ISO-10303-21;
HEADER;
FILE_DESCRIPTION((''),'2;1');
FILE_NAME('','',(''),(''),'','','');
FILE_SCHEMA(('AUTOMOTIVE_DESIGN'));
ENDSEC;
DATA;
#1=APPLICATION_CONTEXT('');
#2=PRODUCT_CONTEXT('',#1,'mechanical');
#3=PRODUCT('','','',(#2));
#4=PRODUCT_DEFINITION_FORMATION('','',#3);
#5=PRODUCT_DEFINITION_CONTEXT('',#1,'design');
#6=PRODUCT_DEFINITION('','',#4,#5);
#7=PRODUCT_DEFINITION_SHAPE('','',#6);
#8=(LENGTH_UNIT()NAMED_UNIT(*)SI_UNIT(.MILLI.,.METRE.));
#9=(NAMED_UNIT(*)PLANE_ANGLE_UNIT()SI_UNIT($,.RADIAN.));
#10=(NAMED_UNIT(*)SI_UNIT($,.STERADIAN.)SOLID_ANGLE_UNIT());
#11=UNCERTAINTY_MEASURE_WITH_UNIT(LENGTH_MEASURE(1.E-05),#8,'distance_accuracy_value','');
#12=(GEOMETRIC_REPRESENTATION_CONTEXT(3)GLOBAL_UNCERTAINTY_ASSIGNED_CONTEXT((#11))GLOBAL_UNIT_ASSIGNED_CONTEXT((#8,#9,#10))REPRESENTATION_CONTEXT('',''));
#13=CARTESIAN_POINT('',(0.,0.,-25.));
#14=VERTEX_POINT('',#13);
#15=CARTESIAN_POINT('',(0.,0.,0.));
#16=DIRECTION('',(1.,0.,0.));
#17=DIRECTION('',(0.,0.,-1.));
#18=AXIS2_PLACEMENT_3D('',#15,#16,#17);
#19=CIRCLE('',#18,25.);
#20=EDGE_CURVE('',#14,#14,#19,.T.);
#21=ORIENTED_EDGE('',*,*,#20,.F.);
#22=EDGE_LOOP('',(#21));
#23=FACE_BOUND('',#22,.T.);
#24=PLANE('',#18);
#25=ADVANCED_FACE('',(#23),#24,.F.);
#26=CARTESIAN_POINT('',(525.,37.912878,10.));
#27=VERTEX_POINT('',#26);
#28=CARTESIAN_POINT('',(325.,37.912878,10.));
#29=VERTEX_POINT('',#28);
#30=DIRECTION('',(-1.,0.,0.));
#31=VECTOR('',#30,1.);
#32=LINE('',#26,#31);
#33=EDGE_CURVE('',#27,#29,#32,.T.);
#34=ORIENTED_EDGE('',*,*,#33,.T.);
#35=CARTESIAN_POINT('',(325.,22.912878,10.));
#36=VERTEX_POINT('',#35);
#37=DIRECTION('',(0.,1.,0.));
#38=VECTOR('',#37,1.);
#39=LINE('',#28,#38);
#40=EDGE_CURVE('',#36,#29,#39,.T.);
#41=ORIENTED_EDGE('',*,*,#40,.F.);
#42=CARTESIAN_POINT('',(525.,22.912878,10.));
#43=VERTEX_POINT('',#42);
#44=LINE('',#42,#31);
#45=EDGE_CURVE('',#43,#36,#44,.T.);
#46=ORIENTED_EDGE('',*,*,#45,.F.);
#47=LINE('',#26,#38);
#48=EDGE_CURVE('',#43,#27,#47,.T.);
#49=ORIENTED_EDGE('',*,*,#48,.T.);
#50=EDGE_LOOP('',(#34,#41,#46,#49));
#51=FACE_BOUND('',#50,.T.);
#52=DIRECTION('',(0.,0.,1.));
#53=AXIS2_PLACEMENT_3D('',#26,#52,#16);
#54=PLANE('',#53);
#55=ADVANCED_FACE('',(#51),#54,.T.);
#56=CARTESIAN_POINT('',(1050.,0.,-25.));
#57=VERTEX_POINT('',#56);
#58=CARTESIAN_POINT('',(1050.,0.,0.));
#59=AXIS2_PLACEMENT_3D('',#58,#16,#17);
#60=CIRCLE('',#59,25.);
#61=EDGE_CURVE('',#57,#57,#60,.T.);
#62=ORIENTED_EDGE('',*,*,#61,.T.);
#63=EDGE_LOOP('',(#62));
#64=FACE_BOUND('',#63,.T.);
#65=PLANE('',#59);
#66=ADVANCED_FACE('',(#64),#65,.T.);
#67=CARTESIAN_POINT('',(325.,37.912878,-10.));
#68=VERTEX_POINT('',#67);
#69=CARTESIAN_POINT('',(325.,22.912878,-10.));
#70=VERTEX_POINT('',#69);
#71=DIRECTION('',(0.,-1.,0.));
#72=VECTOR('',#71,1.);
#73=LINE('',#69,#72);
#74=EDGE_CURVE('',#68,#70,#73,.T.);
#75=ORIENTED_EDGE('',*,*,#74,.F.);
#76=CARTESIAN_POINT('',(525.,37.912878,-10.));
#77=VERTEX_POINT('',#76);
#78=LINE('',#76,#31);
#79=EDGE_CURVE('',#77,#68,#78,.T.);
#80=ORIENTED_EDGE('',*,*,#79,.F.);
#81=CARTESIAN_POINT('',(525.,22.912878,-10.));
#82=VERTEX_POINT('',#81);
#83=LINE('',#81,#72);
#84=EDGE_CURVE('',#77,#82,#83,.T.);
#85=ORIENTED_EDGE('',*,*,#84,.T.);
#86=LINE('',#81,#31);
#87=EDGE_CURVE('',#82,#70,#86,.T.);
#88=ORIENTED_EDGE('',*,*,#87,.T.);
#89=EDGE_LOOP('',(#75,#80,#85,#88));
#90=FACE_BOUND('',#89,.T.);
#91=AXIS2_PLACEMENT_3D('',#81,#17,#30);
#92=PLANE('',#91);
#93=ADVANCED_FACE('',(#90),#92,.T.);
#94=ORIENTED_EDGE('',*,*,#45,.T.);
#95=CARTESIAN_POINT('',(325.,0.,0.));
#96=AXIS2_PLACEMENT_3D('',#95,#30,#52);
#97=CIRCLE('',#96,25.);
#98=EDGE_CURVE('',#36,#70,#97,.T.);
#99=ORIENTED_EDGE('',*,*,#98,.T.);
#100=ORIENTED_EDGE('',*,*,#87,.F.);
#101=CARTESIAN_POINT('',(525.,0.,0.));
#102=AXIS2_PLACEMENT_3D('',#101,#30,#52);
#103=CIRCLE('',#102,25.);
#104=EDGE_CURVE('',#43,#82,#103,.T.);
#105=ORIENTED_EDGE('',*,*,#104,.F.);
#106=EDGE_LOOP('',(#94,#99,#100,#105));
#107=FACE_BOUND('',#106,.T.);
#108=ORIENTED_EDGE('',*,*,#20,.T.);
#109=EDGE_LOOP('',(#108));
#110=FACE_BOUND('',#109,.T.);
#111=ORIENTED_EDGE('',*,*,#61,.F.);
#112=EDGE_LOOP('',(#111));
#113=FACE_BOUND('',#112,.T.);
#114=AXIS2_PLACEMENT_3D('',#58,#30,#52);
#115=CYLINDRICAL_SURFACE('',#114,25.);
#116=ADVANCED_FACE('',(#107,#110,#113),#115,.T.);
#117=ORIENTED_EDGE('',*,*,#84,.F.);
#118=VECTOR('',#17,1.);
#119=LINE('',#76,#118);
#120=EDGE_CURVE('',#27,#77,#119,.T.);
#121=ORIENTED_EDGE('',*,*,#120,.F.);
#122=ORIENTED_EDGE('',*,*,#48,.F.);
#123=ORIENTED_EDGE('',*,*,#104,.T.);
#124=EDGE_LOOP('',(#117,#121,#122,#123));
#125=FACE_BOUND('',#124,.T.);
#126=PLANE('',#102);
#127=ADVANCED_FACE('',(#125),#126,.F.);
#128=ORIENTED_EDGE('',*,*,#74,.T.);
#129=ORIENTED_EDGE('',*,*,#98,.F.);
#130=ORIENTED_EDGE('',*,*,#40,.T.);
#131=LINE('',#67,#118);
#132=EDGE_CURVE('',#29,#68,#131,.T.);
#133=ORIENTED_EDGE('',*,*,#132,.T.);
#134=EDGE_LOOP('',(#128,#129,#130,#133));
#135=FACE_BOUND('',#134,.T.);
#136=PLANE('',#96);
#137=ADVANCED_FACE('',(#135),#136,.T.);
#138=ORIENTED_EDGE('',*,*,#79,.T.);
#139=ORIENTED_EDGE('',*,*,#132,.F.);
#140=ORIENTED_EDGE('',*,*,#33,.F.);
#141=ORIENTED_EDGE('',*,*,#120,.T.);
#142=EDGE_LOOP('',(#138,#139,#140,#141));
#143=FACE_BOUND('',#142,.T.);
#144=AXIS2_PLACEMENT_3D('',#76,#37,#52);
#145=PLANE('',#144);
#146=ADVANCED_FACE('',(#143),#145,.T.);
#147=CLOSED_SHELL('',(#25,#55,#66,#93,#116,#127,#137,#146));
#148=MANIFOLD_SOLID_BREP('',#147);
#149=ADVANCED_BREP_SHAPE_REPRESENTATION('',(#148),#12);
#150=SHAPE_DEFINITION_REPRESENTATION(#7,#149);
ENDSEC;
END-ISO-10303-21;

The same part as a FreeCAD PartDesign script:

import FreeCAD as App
import Part
import Sketcher


def add_polygon(sketch, points):
    """Adds a closed chain of lines whose ends are joined by coincident constraints."""
    first, n = sketch.GeometryCount, len(points)
    for a, b in zip(points, points[1:] + points[:1]):
        sketch.addGeometry(Part.LineSegment(App.Vector(*a, 0), App.Vector(*b, 0)), False)
    for i in range(n):
        sketch.addConstraint(Sketcher.Constraint("Coincident", first + i, 2, first + (i + 1) % n, 1))

doc = App.newDocument("Part")
body = doc.addObject("PartDesign::Body", "Body")

# Sketch on YZ plane
sketch1 = body.newObject("Sketcher::SketchObject", "Sketch")
sketch1.AttachmentSupport = (doc.getObject("YZ_Plane"), [""])
sketch1.MapMode = "FlatFace"
sketch1.addGeometry(Part.Circle(App.Vector(0, 0, 0), App.Vector(0, 0, 1), 25), False)
sketch1.addConstraint([
    Sketcher.Constraint("Coincident", 0, 3, -1, 1),
    Sketcher.Constraint("Diameter", 0, 50.0),
])
pad1 = body.newObject("PartDesign::Pad", "Pad")
pad1.Profile = sketch1
pad1.Length = 1050

# Sketch on YZ plane
sketch2 = body.newObject("Sketcher::SketchObject", "Sketch001")
sketch2.AttachmentSupport = (doc.getObject("YZ_Plane"), [""])
sketch2.MapMode = "FlatFace"
sketch2.AttachmentOffset = App.Placement(App.Vector(0, 0, 325), App.Rotation())
add_polygon(sketch2, [(37.912878, -10), (22.912878, -10), (22.912878, 10), (37.912878, 10)])  # lines 0-3
sketch2.addConstraint([
    Sketcher.Constraint("Horizontal", 0),
    Sketcher.Constraint("Vertical", 1),
    Sketcher.Constraint("Horizontal", 2),
    Sketcher.Constraint("Vertical", 3),
    Sketcher.Constraint("DistanceX", 0, 2, 0, 1, 15.0),
    Sketcher.Constraint("DistanceY", 1, 1, 1, 2, 20.0),
    Sketcher.Constraint("DistanceY", 0, 2, -1, 1, 10.0),
    Sketcher.Constraint("DistanceX", -1, 1, 0, 2, 22.912878),
])
pad2 = body.newObject("PartDesign::Pad", "Pad001")
pad2.Profile = sketch2
pad2.Length = 200

doc.recompute()
